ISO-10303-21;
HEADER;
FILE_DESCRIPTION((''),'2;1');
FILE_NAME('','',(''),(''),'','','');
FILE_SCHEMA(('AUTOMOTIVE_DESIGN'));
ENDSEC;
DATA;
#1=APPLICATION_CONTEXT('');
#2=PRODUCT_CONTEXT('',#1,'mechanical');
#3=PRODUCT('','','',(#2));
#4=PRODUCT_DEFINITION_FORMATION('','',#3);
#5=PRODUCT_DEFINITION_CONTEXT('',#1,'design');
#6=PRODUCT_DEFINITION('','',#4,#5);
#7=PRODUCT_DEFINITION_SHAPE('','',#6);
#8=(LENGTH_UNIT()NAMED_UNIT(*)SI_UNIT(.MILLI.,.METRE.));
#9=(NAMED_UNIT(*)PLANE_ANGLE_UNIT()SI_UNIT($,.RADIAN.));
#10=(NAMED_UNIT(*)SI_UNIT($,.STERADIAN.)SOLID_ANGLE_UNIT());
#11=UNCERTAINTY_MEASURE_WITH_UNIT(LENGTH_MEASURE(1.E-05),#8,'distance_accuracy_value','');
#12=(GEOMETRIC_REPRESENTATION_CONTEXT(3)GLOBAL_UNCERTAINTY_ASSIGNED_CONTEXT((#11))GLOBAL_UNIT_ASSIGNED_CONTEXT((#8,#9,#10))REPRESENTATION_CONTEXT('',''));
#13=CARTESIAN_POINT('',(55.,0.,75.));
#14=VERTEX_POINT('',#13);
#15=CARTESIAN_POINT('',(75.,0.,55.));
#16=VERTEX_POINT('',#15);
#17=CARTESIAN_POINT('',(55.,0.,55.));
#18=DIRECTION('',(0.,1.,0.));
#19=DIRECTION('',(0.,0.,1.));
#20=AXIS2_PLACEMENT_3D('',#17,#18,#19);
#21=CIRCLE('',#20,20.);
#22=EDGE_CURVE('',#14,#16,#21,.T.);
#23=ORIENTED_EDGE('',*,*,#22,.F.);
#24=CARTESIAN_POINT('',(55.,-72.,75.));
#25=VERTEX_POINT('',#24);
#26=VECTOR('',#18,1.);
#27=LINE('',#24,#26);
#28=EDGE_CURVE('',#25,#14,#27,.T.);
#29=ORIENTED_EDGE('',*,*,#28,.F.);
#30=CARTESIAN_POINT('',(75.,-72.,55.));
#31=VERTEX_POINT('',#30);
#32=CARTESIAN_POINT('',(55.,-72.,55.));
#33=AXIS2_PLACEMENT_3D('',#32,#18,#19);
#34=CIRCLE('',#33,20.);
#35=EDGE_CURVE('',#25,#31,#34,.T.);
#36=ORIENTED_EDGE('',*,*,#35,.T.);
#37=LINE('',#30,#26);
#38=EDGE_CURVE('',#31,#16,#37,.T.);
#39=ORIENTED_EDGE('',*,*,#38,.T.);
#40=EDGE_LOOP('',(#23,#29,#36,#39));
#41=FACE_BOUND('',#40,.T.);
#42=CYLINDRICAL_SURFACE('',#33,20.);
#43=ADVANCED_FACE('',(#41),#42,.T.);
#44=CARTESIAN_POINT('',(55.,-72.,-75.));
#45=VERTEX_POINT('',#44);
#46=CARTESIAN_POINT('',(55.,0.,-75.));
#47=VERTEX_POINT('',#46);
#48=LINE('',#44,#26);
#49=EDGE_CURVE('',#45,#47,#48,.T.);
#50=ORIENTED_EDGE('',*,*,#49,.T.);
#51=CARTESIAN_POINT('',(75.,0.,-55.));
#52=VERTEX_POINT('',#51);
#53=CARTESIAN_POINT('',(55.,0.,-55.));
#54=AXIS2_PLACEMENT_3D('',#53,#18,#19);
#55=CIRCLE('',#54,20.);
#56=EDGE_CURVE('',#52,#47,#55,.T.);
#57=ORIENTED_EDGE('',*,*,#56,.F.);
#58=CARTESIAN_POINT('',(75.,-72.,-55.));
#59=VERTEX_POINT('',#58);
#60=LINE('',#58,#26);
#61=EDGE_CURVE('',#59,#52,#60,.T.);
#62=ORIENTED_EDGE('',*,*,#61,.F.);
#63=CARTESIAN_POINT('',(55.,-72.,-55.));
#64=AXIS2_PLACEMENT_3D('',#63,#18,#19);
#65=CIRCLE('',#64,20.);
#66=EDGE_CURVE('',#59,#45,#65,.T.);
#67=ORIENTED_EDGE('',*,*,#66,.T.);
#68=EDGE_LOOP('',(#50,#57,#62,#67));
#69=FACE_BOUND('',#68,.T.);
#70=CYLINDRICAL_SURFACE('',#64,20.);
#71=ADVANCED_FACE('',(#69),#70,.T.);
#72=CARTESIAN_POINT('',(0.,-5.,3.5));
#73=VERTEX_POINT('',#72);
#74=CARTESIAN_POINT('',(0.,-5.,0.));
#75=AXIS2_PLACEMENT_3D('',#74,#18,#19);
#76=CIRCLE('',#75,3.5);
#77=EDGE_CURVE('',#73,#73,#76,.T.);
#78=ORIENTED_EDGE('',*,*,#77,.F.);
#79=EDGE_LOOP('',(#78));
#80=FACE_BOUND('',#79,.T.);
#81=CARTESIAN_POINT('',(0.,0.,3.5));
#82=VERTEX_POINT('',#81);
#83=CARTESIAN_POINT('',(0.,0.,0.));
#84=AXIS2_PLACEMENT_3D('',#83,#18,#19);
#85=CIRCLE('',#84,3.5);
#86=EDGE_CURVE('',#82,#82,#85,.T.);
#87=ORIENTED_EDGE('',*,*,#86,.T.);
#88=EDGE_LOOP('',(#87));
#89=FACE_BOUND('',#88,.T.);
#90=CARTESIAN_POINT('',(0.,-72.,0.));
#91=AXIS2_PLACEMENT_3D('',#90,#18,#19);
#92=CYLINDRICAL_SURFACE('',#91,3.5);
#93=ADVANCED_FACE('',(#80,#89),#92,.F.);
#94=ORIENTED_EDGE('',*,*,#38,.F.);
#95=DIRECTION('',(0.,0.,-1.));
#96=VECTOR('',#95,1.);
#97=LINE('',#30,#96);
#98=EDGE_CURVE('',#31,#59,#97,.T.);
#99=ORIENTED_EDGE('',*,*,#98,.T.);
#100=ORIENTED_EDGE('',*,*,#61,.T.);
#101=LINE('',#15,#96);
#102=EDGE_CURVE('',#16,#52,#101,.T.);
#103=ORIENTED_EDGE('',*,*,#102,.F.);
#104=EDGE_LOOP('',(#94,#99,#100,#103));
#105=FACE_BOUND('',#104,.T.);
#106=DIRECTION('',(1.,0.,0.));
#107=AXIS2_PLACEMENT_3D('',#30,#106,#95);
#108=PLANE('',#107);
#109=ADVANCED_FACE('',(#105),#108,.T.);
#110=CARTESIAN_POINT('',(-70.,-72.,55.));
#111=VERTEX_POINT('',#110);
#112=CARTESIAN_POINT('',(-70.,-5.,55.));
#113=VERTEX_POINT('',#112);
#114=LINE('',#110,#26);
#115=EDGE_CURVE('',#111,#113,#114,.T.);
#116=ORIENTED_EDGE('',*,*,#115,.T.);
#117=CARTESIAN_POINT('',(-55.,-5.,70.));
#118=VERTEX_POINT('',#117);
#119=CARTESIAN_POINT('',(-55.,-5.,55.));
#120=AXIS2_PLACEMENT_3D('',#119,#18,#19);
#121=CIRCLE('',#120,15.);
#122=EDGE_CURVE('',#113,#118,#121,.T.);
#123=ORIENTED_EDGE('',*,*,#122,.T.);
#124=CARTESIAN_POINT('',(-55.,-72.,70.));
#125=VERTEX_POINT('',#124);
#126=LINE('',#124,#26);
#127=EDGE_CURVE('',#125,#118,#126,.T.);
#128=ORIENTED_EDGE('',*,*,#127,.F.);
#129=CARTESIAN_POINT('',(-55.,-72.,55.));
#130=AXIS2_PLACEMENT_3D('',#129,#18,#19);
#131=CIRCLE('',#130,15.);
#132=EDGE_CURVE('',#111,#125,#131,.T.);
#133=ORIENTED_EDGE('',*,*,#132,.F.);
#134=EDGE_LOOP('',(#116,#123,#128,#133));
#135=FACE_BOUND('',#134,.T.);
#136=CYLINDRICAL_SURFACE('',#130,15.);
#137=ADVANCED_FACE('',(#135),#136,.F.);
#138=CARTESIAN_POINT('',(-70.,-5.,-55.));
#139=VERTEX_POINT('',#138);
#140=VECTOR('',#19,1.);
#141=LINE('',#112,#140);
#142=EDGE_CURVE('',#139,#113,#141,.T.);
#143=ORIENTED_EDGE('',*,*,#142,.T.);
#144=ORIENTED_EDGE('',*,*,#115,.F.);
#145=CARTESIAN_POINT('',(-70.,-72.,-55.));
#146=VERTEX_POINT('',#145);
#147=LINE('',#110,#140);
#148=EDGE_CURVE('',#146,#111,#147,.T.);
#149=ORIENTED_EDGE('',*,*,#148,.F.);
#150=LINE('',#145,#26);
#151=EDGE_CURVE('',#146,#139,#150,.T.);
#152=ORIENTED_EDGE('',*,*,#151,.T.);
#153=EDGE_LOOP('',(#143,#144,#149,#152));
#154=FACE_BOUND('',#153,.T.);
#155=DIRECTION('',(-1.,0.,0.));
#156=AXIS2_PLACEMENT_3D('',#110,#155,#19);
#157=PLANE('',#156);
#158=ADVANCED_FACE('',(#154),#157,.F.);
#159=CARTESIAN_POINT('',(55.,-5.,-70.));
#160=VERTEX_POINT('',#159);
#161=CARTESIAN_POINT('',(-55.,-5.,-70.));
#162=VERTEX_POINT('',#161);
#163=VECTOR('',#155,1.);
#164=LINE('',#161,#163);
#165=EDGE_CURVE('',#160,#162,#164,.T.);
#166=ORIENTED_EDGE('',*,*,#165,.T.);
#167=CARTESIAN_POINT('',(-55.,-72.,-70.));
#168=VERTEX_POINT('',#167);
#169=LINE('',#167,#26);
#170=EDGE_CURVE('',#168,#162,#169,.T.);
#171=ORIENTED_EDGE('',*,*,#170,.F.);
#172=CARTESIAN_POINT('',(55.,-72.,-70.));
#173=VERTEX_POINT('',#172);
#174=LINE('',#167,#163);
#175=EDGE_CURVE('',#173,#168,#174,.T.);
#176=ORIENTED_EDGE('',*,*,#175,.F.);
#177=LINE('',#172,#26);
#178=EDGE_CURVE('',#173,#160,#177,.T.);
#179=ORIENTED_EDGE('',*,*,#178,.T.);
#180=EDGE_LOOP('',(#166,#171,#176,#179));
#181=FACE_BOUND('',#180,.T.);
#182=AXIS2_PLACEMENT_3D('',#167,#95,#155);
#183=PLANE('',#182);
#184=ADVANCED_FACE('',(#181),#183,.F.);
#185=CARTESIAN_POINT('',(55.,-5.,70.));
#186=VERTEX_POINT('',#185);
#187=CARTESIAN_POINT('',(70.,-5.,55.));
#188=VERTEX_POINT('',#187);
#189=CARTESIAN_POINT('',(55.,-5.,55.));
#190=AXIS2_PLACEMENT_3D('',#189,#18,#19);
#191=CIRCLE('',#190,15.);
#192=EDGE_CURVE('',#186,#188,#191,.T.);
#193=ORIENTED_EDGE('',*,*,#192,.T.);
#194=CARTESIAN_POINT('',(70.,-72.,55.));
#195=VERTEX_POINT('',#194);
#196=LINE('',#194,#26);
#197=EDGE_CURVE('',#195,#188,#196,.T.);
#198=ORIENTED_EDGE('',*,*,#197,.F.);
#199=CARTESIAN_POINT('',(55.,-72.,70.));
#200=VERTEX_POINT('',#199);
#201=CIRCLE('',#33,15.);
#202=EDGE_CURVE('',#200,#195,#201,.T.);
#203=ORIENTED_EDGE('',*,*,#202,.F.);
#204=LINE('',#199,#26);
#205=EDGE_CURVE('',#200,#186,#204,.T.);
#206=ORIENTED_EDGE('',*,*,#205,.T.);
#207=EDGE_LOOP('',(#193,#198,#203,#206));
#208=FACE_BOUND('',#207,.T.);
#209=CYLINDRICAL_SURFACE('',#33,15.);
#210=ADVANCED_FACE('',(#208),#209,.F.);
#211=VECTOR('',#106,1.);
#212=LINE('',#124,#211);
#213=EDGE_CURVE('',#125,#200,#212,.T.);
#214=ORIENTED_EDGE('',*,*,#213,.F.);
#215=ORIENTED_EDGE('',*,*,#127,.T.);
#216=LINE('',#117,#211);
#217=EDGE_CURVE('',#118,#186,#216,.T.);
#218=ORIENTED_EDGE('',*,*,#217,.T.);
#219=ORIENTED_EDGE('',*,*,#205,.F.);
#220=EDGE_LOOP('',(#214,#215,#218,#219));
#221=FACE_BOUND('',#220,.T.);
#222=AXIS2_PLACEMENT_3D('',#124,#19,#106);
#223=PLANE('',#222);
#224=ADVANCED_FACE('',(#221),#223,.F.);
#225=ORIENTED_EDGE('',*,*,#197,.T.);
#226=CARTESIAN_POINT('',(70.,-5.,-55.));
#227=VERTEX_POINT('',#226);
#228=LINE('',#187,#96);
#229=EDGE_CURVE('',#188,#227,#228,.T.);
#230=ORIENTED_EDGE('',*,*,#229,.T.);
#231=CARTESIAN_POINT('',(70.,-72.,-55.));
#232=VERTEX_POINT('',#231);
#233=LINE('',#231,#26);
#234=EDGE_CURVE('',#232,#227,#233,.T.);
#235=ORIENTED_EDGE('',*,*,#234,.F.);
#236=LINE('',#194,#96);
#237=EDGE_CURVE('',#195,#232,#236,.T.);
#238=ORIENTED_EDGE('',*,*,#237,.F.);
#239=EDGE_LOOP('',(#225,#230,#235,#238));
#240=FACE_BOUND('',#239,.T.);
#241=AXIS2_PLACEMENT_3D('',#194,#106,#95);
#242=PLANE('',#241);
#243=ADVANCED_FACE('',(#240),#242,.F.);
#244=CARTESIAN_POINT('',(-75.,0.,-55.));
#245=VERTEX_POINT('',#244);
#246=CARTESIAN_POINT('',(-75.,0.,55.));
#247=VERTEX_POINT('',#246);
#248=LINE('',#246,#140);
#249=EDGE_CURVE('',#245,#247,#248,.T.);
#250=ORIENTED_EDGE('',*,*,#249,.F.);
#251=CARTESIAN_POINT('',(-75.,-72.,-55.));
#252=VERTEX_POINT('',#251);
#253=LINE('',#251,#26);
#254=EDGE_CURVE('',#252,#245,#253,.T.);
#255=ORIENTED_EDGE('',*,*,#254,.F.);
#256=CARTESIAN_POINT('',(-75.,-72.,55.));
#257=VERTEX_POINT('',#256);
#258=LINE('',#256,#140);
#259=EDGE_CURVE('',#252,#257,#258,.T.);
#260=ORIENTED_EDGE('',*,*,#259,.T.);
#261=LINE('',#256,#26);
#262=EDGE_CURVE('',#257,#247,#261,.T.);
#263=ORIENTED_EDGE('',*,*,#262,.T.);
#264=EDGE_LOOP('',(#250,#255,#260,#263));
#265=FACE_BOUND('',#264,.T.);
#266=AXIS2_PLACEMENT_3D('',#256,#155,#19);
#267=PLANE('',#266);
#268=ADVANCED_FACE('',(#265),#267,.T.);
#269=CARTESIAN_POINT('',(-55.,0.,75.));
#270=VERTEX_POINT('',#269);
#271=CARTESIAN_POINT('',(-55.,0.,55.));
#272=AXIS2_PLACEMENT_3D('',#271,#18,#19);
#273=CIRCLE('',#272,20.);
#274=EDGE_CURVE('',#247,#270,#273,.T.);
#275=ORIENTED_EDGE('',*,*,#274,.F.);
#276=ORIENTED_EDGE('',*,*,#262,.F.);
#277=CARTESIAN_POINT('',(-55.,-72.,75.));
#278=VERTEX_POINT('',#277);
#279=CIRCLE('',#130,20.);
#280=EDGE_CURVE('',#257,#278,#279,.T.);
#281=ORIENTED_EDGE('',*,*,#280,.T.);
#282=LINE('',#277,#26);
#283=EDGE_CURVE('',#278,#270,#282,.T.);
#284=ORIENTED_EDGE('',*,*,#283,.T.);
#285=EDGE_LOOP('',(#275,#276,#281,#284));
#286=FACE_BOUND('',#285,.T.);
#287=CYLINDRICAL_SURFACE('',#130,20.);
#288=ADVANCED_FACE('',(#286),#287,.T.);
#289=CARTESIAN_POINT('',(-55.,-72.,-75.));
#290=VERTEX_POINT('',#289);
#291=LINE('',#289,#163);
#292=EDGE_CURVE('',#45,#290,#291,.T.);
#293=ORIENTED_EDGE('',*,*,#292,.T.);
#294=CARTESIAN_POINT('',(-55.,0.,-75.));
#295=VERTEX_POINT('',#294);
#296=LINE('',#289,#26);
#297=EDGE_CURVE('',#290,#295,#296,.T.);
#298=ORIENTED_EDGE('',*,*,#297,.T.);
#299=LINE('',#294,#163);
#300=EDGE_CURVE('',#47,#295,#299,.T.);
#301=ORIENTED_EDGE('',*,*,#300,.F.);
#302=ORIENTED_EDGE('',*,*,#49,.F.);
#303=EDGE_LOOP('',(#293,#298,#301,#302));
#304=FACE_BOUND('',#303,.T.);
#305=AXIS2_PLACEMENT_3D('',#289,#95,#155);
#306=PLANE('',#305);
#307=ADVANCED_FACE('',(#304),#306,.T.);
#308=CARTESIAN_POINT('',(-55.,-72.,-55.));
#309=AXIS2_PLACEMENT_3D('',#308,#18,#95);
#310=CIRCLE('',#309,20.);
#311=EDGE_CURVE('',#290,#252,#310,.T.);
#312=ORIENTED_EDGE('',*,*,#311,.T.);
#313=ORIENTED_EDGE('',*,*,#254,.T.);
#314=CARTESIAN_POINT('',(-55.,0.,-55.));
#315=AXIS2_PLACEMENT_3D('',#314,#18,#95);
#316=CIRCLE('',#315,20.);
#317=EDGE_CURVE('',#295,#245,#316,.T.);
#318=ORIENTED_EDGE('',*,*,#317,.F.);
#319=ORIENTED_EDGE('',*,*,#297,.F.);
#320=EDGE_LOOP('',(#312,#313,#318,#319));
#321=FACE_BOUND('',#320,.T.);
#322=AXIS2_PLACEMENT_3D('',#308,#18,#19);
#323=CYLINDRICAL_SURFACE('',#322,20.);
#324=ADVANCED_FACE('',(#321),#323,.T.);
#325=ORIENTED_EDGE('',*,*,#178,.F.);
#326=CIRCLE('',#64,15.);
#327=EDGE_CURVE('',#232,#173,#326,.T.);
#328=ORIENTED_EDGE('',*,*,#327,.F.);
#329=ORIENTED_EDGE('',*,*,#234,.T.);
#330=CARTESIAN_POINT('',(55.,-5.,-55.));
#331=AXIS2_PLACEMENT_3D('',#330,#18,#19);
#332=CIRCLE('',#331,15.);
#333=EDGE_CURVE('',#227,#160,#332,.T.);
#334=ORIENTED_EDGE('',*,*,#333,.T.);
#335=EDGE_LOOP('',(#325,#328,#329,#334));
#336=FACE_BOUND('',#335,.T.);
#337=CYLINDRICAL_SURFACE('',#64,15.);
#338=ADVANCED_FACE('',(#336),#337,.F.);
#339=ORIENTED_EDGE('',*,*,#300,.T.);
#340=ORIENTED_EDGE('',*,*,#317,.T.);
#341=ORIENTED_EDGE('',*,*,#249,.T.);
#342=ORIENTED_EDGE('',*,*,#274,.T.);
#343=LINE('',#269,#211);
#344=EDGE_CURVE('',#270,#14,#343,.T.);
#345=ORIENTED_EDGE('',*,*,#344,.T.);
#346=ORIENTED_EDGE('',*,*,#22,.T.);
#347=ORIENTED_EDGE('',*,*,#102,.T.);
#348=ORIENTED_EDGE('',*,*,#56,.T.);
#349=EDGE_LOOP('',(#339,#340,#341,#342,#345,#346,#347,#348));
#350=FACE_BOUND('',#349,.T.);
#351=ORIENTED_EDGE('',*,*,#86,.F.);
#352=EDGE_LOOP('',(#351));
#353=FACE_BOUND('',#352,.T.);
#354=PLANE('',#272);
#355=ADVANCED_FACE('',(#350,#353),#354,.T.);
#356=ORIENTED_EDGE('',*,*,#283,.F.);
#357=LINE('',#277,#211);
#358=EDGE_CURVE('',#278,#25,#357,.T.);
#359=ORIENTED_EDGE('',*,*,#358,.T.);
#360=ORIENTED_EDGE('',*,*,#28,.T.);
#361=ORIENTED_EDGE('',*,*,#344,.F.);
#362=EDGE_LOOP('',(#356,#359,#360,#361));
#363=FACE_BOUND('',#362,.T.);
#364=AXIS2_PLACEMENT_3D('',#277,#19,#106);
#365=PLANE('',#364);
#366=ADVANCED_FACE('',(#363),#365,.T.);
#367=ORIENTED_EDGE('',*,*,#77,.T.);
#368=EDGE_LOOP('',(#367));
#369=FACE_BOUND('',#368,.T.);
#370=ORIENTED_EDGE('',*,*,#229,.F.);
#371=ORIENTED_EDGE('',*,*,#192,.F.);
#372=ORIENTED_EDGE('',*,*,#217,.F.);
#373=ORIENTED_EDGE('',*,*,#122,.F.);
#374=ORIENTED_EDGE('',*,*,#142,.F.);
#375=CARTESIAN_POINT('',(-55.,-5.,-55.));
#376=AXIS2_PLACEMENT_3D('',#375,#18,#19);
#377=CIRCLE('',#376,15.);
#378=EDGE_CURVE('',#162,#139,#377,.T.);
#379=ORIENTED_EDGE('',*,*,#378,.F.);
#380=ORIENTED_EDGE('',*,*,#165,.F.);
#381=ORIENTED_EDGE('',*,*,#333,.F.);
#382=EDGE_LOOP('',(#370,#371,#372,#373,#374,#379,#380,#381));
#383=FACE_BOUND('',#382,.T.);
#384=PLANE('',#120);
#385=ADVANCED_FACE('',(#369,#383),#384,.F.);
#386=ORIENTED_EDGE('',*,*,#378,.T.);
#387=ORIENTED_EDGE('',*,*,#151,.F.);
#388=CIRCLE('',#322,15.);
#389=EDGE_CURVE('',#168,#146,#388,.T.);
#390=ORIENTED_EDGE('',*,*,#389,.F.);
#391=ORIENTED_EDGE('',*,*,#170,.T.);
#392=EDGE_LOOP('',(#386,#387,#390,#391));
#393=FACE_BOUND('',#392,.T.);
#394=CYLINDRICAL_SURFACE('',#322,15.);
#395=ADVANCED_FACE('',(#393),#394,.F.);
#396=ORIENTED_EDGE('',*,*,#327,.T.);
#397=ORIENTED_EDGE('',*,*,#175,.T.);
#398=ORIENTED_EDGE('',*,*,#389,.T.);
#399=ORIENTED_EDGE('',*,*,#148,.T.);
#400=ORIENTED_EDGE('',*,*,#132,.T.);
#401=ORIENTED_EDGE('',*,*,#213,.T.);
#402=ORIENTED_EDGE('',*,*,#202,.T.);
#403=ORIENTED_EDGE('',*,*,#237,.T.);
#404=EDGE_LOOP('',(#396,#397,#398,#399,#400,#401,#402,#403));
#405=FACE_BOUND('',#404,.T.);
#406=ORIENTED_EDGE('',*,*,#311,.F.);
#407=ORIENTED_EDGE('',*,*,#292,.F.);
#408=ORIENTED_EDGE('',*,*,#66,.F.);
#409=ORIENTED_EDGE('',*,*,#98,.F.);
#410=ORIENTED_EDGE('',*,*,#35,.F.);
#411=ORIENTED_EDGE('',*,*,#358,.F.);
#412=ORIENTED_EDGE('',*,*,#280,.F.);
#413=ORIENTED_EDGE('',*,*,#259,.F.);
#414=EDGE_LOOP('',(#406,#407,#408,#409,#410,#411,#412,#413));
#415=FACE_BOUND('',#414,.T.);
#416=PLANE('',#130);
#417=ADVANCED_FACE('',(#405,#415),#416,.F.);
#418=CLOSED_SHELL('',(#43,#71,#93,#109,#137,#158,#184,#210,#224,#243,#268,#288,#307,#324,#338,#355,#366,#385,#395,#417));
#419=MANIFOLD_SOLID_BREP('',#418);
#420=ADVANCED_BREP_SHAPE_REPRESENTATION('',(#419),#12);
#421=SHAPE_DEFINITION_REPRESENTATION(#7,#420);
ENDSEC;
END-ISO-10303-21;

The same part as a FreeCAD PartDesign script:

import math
import FreeCAD as App
import Part
import Sketcher

V = App.Vector


def faces_at(feature, points):
    """Names of the faces that lie closest to the given points."""
    faces = feature.Shape.Faces
    near = lambda p: min(range(len(faces)), key=lambda i: faces[i].distToShape(Part.Vertex(*p))[0])
    return sorted({f"Face{near(p) + 1}" for p in points})

doc = App.newDocument("Part")
params = doc.addObject("Spreadsheet::Sheet", "Params")
for row, (alias, value) in enumerate([
    ("sketch1_radius", "20 mm"),
    ("sketch1_width", "110 mm"),
    ("pad1_length", "72 mm"),
    ("thickness_wall", "5 mm"),
    ("sketch2_diameter", "7 mm"),
], start=1):
    params.set(f"A{row}", alias)
    params.set(f"B{row}", "=" + value)
    params.setAlias(f"B{row}", alias)

body = doc.addObject("PartDesign::Body", "Body")

# Sketch on XZ plane
sketch1 = doc.addObject("Sketcher::SketchObject", "Sketch")
body.addObject(sketch1)
sketch1.AttachmentSupport = (doc.XZ_Plane, [""])
sketch1.MapMode = "FlatFace"
sketch1.addGeometry([
    Part.LineSegment(V(-55, 75, 0), V(55, 75, 0)),  # 0
    Part.ArcOfCircle(Part.Circle(V(55, 55, 0), V(0, 0, 1), 20), math.radians(0), math.radians(90)),  # 1
    Part.LineSegment(V(75, 55, 0), V(75, -55, 0)),  # 2
    Part.ArcOfCircle(Part.Circle(V(55, -55, 0), V(0, 0, 1), 20), math.radians(-90), math.radians(0)),  # 3
    Part.LineSegment(V(55, -75, 0), V(-55, -75, 0)),  # 4
    Part.ArcOfCircle(Part.Circle(V(-55, -55, 0), V(0, 0, 1), 20), math.radians(180), math.radians(270)),  # 5
    Part.LineSegment(V(-75, -55, 0), V(-75, 55, 0)),  # 6
    Part.ArcOfCircle(Part.Circle(V(-55, 55, 0), V(0, 0, 1), 20), math.radians(90), math.radians(180)),  # 7
], False)
sketch1.addConstraint([
    Sketcher.Constraint("Tangent", 0, 2, 1, 2),
    Sketcher.Constraint("Tangent", 1, 1, 2, 1),
    Sketcher.Constraint("Tangent", 2, 2, 3, 2),
    Sketcher.Constraint("Tangent", 3, 1, 4, 1),
    Sketcher.Constraint("Tangent", 4, 2, 5, 2),
    Sketcher.Constraint("Tangent", 5, 1, 6, 1),
    Sketcher.Constraint("Tangent", 6, 2, 7, 2),
    Sketcher.Constraint("Tangent", 7, 1, 0, 1),
    Sketcher.Constraint("Horizontal", 0),
    Sketcher.Constraint("Vertical", 2),
    Sketcher.Constraint("Horizontal", 4),
    Sketcher.Constraint("Vertical", 6),
    Sketcher.Constraint("Equal", 1, 3),
    Sketcher.Constraint("Equal", 3, 5),
    Sketcher.Constraint("Equal", 5, 7),
    Sketcher.Constraint("Symmetric", 1, 3, 5, 3, -1, 1),
    Sketcher.Constraint("Equal", 4, 2),
    Sketcher.Constraint("Radius", 1, 20.0),
    Sketcher.Constraint("DistanceX", 0, 1, 0, 2, 110.0),
])
sketch1.setExpression("Constraints[17]", "Params.sketch1_radius")
sketch1.setExpression("Constraints[18]", "Params.sketch1_width")
pad1 = doc.addObject("PartDesign::Pad", "Pad")
body.addObject(pad1)
pad1.Profile = sketch1
pad1.setExpression("Length", "Params.pad1_length")
doc.recompute()

thickness = doc.addObject("PartDesign::Thickness", "Thickness")
body.addObject(thickness)
thickness.Base = (pad1, faces_at(pad1, [(0, -72, 0)]))
thickness.setExpression("Value", "Params.thickness_wall")
thickness.Reversed = True
thickness.Join = "Intersection"

# Sketch on XZ plane
sketch2 = doc.addObject("Sketcher::SketchObject", "Sketch001")
body.addObject(sketch2)
sketch2.AttachmentSupport = (doc.XZ_Plane, [""])
sketch2.MapMode = "FlatFace"
sketch2.addGeometry(Part.Circle(V(0, 0, 0), V(0, 0, 1), 3.5), False)
sketch2.addConstraint([
    Sketcher.Constraint("Coincident", 0, 3, -1, 1),
    Sketcher.Constraint("Diameter", 0, 7.0),
])
sketch2.setExpression("Constraints[1]", "Params.sketch2_diameter")
pocket1 = doc.addObject("PartDesign::Pocket", "Pocket")
body.addObject(pocket1)
pocket1.Profile = sketch2
pocket1.Type = "ThroughAll"
pocket1.Reversed = True

doc.recompute()
